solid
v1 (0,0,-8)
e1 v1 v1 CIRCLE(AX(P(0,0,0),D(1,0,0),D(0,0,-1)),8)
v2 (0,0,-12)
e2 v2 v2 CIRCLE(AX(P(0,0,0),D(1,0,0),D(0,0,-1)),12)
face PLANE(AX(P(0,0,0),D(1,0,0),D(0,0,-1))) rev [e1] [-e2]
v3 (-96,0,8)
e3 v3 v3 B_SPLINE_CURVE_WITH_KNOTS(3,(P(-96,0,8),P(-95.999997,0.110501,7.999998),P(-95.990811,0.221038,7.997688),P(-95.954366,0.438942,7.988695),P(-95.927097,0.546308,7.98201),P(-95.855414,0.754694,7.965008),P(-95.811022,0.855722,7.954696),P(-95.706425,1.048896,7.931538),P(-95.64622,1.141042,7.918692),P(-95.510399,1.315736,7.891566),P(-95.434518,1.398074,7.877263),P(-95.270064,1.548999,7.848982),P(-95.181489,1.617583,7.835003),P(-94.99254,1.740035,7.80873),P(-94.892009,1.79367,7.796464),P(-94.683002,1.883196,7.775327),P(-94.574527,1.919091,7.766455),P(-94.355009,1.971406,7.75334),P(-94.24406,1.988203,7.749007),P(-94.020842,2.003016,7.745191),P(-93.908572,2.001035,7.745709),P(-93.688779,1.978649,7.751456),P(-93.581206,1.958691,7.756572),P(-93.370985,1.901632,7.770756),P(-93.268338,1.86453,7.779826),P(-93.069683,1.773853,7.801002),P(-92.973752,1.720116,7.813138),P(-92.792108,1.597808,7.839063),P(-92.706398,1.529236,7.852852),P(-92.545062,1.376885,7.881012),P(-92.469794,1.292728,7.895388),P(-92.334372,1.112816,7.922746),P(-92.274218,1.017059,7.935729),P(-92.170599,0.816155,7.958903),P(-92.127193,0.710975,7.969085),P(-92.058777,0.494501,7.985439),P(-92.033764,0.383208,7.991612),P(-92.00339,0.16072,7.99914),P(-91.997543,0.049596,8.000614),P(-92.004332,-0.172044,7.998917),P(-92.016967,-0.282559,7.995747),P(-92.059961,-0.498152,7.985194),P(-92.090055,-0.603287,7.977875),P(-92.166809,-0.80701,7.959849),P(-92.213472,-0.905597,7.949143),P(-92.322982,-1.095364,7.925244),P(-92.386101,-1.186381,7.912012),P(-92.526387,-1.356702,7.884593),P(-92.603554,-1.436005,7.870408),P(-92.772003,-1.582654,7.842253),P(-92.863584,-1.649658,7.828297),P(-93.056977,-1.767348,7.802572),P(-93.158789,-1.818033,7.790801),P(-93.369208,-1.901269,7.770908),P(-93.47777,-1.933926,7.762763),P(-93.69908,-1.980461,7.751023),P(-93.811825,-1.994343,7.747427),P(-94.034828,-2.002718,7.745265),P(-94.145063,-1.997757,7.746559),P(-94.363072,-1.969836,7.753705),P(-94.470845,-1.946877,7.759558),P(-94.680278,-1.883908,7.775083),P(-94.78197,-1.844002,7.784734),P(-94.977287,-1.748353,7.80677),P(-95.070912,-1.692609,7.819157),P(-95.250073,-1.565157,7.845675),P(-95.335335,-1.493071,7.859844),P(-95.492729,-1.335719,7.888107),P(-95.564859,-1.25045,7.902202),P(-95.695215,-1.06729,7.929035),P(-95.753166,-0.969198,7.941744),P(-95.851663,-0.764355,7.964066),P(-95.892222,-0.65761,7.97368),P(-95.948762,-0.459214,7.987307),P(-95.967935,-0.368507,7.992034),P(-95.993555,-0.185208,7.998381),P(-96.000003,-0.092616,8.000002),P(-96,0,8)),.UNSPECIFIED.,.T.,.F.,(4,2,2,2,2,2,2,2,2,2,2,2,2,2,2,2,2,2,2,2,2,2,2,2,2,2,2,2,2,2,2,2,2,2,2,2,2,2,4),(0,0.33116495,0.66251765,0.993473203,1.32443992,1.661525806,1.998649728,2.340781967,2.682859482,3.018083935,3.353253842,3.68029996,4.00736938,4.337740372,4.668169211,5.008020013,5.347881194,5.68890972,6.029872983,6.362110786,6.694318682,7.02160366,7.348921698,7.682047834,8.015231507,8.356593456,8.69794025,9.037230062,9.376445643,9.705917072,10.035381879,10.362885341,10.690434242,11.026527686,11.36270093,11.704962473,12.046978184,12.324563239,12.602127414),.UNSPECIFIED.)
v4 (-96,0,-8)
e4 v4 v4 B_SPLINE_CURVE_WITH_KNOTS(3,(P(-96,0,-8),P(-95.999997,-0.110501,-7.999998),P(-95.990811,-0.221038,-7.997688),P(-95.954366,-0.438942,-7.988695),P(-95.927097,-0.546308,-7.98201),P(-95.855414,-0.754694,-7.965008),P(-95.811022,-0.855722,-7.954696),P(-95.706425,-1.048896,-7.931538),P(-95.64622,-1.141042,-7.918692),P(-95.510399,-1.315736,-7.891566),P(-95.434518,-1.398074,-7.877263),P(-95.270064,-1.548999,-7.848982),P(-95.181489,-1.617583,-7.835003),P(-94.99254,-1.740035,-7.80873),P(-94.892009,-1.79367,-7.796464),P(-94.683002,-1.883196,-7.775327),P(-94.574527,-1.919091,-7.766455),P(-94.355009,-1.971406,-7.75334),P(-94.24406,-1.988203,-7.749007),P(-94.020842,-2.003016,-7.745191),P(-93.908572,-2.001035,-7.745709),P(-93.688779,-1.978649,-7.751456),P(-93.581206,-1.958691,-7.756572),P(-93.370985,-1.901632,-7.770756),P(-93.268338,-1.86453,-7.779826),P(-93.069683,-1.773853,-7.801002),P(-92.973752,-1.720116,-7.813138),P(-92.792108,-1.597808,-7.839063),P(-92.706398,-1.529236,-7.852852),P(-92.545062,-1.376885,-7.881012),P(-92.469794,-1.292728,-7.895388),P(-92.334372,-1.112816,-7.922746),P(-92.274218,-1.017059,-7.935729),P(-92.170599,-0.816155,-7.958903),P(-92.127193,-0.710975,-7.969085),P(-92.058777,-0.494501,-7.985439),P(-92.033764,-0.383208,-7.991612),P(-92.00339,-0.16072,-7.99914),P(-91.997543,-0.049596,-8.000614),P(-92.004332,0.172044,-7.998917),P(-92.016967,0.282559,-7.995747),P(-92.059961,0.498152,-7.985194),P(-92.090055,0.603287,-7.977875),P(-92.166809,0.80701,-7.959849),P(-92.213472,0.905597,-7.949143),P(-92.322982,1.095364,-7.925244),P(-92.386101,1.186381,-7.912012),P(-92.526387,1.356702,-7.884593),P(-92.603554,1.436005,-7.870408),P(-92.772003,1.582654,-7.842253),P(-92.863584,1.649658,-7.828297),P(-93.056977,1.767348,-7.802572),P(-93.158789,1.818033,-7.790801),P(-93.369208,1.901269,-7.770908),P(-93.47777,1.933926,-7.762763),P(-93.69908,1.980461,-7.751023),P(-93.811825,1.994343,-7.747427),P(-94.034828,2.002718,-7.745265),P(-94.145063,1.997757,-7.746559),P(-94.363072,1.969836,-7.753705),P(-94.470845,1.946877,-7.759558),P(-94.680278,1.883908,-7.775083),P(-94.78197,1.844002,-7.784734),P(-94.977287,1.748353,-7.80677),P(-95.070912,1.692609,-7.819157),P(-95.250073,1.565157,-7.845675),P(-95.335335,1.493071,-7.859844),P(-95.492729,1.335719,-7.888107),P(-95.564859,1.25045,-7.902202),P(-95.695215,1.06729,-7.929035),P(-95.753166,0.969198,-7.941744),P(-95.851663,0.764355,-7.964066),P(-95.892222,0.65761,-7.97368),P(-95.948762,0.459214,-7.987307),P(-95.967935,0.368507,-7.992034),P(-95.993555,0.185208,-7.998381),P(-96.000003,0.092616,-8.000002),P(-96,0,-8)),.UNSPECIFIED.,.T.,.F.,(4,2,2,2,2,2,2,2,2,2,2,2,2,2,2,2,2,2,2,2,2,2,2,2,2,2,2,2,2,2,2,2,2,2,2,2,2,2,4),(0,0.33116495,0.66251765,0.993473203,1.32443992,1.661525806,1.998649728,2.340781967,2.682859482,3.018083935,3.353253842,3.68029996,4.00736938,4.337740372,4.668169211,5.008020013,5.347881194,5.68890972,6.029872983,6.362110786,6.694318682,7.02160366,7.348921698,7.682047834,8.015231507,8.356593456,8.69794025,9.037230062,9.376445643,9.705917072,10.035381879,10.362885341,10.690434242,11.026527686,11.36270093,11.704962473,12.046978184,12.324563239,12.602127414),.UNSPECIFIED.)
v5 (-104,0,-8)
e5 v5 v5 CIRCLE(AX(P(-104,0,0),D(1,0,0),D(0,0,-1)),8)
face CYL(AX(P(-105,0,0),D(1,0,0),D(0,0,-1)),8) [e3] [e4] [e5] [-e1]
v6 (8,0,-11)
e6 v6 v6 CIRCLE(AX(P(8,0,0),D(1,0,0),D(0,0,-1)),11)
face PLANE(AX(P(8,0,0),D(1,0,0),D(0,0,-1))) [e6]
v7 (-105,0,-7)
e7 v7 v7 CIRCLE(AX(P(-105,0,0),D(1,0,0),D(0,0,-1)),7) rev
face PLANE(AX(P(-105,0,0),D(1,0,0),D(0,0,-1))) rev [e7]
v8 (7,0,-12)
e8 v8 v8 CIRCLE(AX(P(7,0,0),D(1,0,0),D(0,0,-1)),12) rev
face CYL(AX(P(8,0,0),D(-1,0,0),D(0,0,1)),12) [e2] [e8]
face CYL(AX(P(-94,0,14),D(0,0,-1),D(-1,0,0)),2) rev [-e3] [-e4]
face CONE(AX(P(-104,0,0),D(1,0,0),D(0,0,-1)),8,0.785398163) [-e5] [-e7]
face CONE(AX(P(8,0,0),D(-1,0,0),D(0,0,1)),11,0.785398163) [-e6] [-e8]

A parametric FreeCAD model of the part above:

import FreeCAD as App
import Part
import Sketcher

V = App.Vector
Q = App.Units.Quantity


def edges_at(feature, points):
    """Names of the edges that pass closest to the given points."""
    edges = feature.Shape.Edges
    near = lambda p: min(range(len(edges)), key=lambda i: edges[i].distToShape(Part.Vertex(*p))[0])
    return sorted({f"Edge{near(p) + 1}" for p in points})

doc = App.newDocument("Part")
body = doc.addObject("PartDesign::Body", "Body")

sketch1 = doc.addObject("Sketcher::SketchObject", "Sketch")
body.addObject(sketch1)
sketch1.AttachmentSupport = (doc.YZ_Plane, [""])
sketch1.MapMode = "FlatFace"
sketch1.addGeometry(Part.Circle(V(0, 0, 0), V(0, 0, 1), 8), False)
sketch1.addConstraint(Sketcher.Constraint("Coincident", 0, 3, -1, 1))
sketch1.addConstraint(Sketcher.Constraint("Diameter", 0, Q("16 mm")))
pad1 = doc.addObject("PartDesign::Pad", "Pad")
body.addObject(pad1)
pad1.Profile = sketch1
pad1.Length = 105
pad1.Reversed = True

sketch2 = doc.addObject("Sketcher::SketchObject", "Sketch001")
body.addObject(sketch2)
sketch2.AttachmentSupport = (doc.YZ_Plane, [""])
sketch2.MapMode = "FlatFace"
sketch2.addGeometry(Part.Circle(V(0, 0, 0), V(0, 0, 1), 12), False)
sketch2.addConstraint(Sketcher.Constraint("Coincident", 0, 3, -1, 1))
sketch2.addConstraint(Sketcher.Constraint("Diameter", 0, Q("24 mm")))
pad2 = doc.addObject("PartDesign::Pad", "Pad001")
body.addObject(pad2)
pad2.Profile = sketch2
pad2.Length = 8
doc.recompute()

chamfer = doc.addObject("PartDesign::Chamfer", "Chamfer")
body.addObject(chamfer)
chamfer.Base = (pad2, edges_at(pad2, [(-105, 0, 8), (8, 0, 12)]))
chamfer.Size = 1

sketch3 = doc.addObject("Sketcher::SketchObject", "Sketch002")
body.addObject(sketch3)
sketch3.AttachmentSupport = (doc.XY_Plane, [""])
sketch3.MapMode = "FlatFace"
sketch3.addGeometry(Part.Circle(V(-94, 0, 0), V(0, 0, 1), 2), False)
sketch3.addConstraint(Sketcher.Constraint("PointOnObject", 0, 3, -1))
sketch3.addConstraint(Sketcher.Constraint("Diameter", 0, Q("4 mm")))
sketch3.addConstraint(Sketcher.Constraint("DistanceX", 0, 3, -1, 1, Q("94 mm")))
pocket1 = doc.addObject("PartDesign::Pocket", "Pocket")
body.addObject(pocket1)
pocket1.Profile = sketch3
pocket1.Type = "ThroughAll"
pocket1.Midplane = True

doc.recompute()
